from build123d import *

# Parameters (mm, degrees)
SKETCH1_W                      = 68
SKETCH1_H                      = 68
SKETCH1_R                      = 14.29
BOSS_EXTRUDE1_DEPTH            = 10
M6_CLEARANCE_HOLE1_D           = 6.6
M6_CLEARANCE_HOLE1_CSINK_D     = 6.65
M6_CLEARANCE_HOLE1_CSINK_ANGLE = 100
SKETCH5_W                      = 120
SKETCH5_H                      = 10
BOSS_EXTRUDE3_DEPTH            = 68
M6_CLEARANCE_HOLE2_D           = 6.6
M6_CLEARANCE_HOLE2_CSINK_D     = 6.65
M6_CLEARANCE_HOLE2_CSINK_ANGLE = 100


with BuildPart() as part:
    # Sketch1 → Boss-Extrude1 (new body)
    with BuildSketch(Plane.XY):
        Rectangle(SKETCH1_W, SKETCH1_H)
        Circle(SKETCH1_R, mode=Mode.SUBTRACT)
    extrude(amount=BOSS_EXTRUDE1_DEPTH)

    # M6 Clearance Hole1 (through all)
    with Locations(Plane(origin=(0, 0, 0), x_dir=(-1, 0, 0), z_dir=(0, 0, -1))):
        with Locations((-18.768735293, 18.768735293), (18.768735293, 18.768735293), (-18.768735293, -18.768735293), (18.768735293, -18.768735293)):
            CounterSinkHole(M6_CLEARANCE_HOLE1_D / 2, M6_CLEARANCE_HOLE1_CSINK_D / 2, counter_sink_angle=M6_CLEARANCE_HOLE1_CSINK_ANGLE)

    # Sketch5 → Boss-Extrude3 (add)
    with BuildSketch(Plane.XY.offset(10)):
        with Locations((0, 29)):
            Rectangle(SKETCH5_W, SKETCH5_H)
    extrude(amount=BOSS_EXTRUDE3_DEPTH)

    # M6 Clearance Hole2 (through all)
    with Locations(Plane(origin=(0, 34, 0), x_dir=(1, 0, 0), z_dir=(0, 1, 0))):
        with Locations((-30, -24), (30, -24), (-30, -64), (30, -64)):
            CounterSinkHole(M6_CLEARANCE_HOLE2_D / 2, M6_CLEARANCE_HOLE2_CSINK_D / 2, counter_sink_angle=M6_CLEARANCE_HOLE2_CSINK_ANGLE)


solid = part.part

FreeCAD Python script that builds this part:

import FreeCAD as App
import Part
import Sketcher
from FreeCAD import Vector
Q = App.Units.Quantity


def add_polygon(sketch, points):
    """Adds a closed chain of lines whose ends are joined by coincident constraints."""
    first, n = sketch.GeometryCount, len(points)
    for a, b in zip(points, points[1:] + points[:1]):
        sketch.addGeometry(Part.LineSegment(App.Vector(*a, 0), App.Vector(*b, 0)), False)
    for i in range(n):
        sketch.addConstraint(Sketcher.Constraint("Coincident", first + i, 2, first + (i + 1) % n, 1))

doc = App.newDocument("Part")
body = doc.addObject("PartDesign::Body", "Body")

# Sketch on XY plane
sketch1 = body.newObject("Sketcher::SketchObject", "Sketch")
sketch1.AttachmentSupport = (doc.getObject("XY_Plane"), [""])
sketch1.MapMode = "FlatFace"
add_polygon(sketch1, [(-34, 34), (-34, -34), (34, -34), (34, 34)])  # lines 0-3
sketch1.addGeometry(Part.Circle(Vector(0, 0, 0), Vector(0, 0, 1), 14), False)  # 4
sketch1.addConstraint(Sketcher.Constraint("Vertical", 0))
sketch1.addConstraint(Sketcher.Constraint("Horizontal", 1))
sketch1.addConstraint(Sketcher.Constraint("Vertical", 2))
sketch1.addConstraint(Sketcher.Constraint("Horizontal", 3))
sketch1.addConstraint(Sketcher.Constraint("Coincident", 4, 3, -1, 1))
sketch1.addConstraint(Sketcher.Constraint("Symmetric", 0, 2, 2, 2, -1, 1))
sketch1.addConstraint(Sketcher.Constraint("Equal", 3, 0))
sketch1.addConstraint(Sketcher.Constraint("Diameter", 4, Q("28.58 mm")))
sketch1.addConstraint(Sketcher.Constraint("DistanceX", 1, 1, 1, 2, Q("68 mm")))
pad1 = body.newObject("PartDesign::Pad", "Pad")
pad1.Profile = sketch1
pad1.Length = 10

# Sketch on XY plane
sketch2 = body.newObject("Sketcher::SketchObject", "Sketch001")
sketch2.AttachmentSupport = (doc.getObject("XY_Plane"), [""])
sketch2.MapMode = "FlatFace"
sketch2.addGeometry(Part.Circle(Vector(18.8, 18.8, 0), Vector(0, 0, 1), 3.3), False)
sketch2.addGeometry(Part.Circle(Vector(-18.8, 18.8, 0), Vector(0, 0, 1), 3.3), False)
sketch2.addGeometry(Part.Circle(Vector(18.8, -18.8, 0), Vector(0, 0, 1), 3.3), False)
sketch2.addGeometry(Part.Circle(Vector(-18.8, -18.8, 0), Vector(0, 0, 1), 3.3), False)
sketch2.addConstraint(Sketcher.Constraint("Equal", 0, 1))
sketch2.addConstraint(Sketcher.Constraint("Equal", 1, 2))
sketch2.addConstraint(Sketcher.Constraint("Equal", 2, 3))
sketch2.addConstraint(Sketcher.Constraint("Symmetric", 1, 3, 2, 3, -1, 1))
sketch2.addConstraint(Sketcher.Constraint("Symmetric", 0, 3, 3, 3, -1, 1))
sketch2.addConstraint(Sketcher.Constraint("Symmetric", 0, 3, 1, 3, -2))
sketch2.addConstraint(Sketcher.Constraint("Diameter", 0, Q("6.6 mm")))
sketch2.addConstraint(Sketcher.Constraint("DistanceX", 1, 3, 0, 3, Q("37.537471 mm")))
sketch2.addConstraint(Sketcher.Constraint("DistanceY", 2, 3, 0, 3, Q("37.537471 mm")))
doc.recompute()
hole = body.newObject("PartDesign::Hole", "Hole")
hole.Profile = sketch2
hole.ThreadType = "None"
hole.Diameter = 6.6
hole.DepthType = "ThroughAll"
hole.HoleCutType = "Countersink"
hole.HoleCutDiameter = 6.65
hole.HoleCutCountersinkAngle = 100
hole.Reversed = True

# Sketch on XY plane
sketch3 = body.newObject("Sketcher::SketchObject", "Sketch002")
sketch3.AttachmentSupport = (doc.getObject("XY_Plane"), [""])
sketch3.MapMode = "FlatFace"
sketch3.AttachmentOffset = App.Placement(Vector(0, 0, 10), App.Rotation())
add_polygon(sketch3, [(-60, 34), (-60, 24), (60, 24), (60, 34)])  # lines 0-3
sketch3.addConstraint(Sketcher.Constraint("Vertical", 0))
sketch3.addConstraint(Sketcher.Constraint("Horizontal", 1))
sketch3.addConstraint(Sketcher.Constraint("Vertical", 2))
sketch3.addConstraint(Sketcher.Constraint("Horizontal", 3))
sketch3.addConstraint(Sketcher.Constraint("DistanceX", 1, 1, 1, 2, Q("120 mm")))
sketch3.addConstraint(Sketcher.Constraint("DistanceY", 0, 2, 0, 1, Q("10 mm")))
sketch3.addConstraint(Sketcher.Constraint("DistanceX", 0, 2, -1, 1, Q("60 mm")))
sketch3.addConstraint(Sketcher.Constraint("DistanceY", -1, 1, 0, 2, Q("24 mm")))
pad2 = body.newObject("PartDesign::Pad", "Pad001")
pad2.Profile = sketch3
pad2.Length = 68

# Sketch on XZ plane
sketch4 = body.newObject("Sketcher::SketchObject", "Sketch003")
sketch4.AttachmentSupport = (doc.getObject("XZ_Plane"), [""])
sketch4.MapMode = "FlatFace"
sketch4.AttachmentOffset = App.Placement(Vector(0, 0, -34), App.Rotation())
sketch4.addGeometry(Part.Circle(Vector(-30, 24, 0), Vector(0, 0, 1), 3.3), False)
sketch4.addGeometry(Part.Circle(Vector(30, 24, 0), Vector(0, 0, 1), 3.3), False)
sketch4.addGeometry(Part.Circle(Vector(-30, 64, 0), Vector(0, 0, 1), 3.3), False)
sketch4.addGeometry(Part.Circle(Vector(30, 64, 0), Vector(0, 0, 1), 3.3), False)
sketch4.addConstraint(Sketcher.Constraint("Equal", 0, 1))
sketch4.addConstraint(Sketcher.Constraint("Equal", 1, 2))
sketch4.addConstraint(Sketcher.Constraint("Equal", 2, 3))
sketch4.addConstraint(Sketcher.Constraint("Symmetric", 0, 3, 1, 3, -2))
sketch4.addConstraint(Sketcher.Constraint("Symmetric", 2, 3, 3, 3, -2))
sketch4.addConstraint(Sketcher.Constraint("Vertical", 0, 3, 2, 3))
sketch4.addConstraint(Sketcher.Constraint("Diameter", 0, Q("6.6 mm")))
sketch4.addConstraint(Sketcher.Constraint("DistanceX", 0, 3, -1, 1, Q("30 mm")))
sketch4.addConstraint(Sketcher.Constraint("DistanceY", -1, 1, 0, 3, Q("24 mm")))
sketch4.addConstraint(Sketcher.Constraint("DistanceY", -1, 1, 2, 3, Q("64 mm")))
doc.recompute()
hole2 = body.newObject("PartDesign::Hole", "Hole001")
hole2.Profile = sketch4
hole2.ThreadType = "None"
hole2.Diameter = 6.6
hole2.DepthType = "ThroughAll"
hole2.HoleCutType = "Countersink"
hole2.HoleCutDiameter = 6.65
hole2.HoleCutCountersinkAngle = 100
hole2.Reversed = True

doc.recompute()
